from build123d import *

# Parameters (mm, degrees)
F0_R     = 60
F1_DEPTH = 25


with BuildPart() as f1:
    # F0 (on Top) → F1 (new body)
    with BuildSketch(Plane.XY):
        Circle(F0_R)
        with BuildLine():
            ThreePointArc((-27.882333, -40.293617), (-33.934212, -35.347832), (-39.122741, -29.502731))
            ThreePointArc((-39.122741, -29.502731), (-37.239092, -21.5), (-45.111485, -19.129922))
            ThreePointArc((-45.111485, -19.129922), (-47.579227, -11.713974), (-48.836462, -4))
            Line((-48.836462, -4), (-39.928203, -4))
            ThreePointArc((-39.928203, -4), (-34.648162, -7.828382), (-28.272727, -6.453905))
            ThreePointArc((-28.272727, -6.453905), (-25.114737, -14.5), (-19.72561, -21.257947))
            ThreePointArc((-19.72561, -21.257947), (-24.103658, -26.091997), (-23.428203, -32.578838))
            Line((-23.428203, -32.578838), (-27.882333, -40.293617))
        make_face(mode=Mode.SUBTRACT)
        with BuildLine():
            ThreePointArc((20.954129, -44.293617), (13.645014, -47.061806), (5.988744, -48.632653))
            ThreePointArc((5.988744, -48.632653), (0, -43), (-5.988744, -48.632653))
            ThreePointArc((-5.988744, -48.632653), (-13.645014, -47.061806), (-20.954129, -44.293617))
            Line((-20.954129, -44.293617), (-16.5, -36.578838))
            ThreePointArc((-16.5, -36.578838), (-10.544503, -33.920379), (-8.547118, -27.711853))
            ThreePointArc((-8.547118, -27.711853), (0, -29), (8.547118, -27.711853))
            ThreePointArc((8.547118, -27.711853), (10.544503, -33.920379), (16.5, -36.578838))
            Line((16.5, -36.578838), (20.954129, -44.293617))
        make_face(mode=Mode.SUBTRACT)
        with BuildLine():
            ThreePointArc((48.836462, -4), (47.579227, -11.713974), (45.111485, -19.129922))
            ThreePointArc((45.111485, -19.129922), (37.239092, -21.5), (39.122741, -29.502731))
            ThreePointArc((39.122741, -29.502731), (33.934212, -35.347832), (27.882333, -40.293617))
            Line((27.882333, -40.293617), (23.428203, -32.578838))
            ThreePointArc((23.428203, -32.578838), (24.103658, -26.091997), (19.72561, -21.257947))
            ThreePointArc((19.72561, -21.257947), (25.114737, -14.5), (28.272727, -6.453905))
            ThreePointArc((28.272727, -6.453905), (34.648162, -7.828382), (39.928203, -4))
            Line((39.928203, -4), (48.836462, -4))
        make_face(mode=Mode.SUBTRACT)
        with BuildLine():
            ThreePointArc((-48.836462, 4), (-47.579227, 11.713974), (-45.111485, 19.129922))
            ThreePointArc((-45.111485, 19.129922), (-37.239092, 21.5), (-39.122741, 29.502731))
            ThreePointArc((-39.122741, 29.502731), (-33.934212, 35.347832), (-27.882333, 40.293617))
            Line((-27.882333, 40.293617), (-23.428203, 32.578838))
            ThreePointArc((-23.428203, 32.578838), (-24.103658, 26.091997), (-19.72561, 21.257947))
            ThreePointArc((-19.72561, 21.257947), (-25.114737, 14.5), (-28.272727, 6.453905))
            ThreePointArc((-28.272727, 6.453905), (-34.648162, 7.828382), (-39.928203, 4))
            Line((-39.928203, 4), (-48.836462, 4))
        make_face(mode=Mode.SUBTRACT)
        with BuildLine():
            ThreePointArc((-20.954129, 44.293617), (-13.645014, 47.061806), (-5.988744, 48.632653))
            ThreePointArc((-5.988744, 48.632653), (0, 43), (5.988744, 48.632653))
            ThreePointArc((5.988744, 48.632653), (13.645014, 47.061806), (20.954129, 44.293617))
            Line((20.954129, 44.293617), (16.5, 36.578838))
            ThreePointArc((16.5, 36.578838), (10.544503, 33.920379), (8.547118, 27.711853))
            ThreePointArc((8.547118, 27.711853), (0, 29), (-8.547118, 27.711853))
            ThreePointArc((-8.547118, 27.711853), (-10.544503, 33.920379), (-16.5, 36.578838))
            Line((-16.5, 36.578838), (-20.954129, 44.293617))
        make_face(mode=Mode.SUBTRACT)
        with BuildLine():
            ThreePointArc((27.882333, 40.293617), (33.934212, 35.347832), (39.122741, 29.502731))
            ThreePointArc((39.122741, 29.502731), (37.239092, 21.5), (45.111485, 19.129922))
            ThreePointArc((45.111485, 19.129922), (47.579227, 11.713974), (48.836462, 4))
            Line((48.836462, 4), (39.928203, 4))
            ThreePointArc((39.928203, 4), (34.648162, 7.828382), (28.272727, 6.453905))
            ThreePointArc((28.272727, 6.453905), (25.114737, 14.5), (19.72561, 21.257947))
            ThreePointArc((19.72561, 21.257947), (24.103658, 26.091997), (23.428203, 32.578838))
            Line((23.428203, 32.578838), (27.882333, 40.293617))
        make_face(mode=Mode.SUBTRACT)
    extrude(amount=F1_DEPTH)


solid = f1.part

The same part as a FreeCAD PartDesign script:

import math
import FreeCAD as App
import Part
import Sketcher

V = App.Vector
Q = App.Units.Quantity

doc = App.newDocument("Part")
params = doc.addObject("Spreadsheet::Sheet", "Params")
for row, (alias, value) in enumerate([
    ("sketch1_diameter", "120 mm"),
    ("sketch1_radius", "6 mm"),
    ("sketch1_radius2", "7.999999 mm"),
    ("pad1_length", "25 mm"),
], start=1):
    params.set(f"A{row}", alias)
    params.set(f"B{row}", "=" + value)
    params.setAlias(f"B{row}", alias)

body = doc.addObject("PartDesign::Body", "Body")

# Sketch on XY plane
sketch1 = body.newObject("Sketcher::SketchObject", "Sketch")
sketch1.AttachmentSupport = (doc.getObject("XY_Plane"), [""])
sketch1.MapMode = "FlatFace"
sketch1.addGeometry([
    Part.Circle(V(0, 0, 0), V(0, 0, 1), 60),  # 0
    Part.LineSegment(V(-23.428203, -32.578838, 0), V(-27.882333, -40.293617, 0)),  # 1
    Part.ArcOfCircle(Part.Circle(V(0.000035, 0.000034, 0), V(0, 0, 1), 49.000049), math.radians(-142.979793), math.radians(-124.682429)),  # 2
    Part.ArcOfCircle(Part.Circle(V(-42.435244, -24.5, 0), V(0, 0, 1), 6), math.radians(-56.489904), math.radians(116.489903)),  # 3
    Part.ArcOfCircle(Part.Circle(V(-0.000017, -0.000003, 0), V(0, 0, 1), 48.999983), math.radians(-175.317585), math.radians(-157.020196)),  # 4
    Part.LineSegment(V(-48.836462, -4, 0), V(-39.928203, -4, 0)),  # 5
    Part.ArcOfCircle(Part.Circle(V(-33, -0.000001, 0), V(0, 0, 1), 7.999999), math.radians(-150.000004), math.radians(-53.778447)),  # 6
    Part.ArcOfCircle(Part.Circle(V(-0.000008, -0.000005, 0), V(0, 0, 1), 28.999991), math.radians(-167.141246), math.radians(-132.858757)),  # 7
    Part.ArcOfCircle(Part.Circle(V(-16.499999, -28.578838, 0), V(0, 0, 1), 8.000001), math.radians(113.778466), math.radians(209.999995)),  # 8
    Part.LineSegment(V(16.5, -36.578838, 0), V(20.954129, -44.293617, 0)),  # 9
    Part.ArcOfCircle(Part.Circle(V(-0.000003, 0.000016, 0), V(0, 0, 1), 49.000016), math.radians(-82.979798), math.radians(-64.682422)),  # 10
    Part.ArcOfCircle(Part.Circle(V(0, -49, 0), V(0, 0, 1), 6), math.radians(3.5101), math.radians(176.4899)),  # 11
    Part.ArcOfCircle(Part.Circle(V(0.000003, 0.000016, 0), V(0, 0, 1), 49.000016), math.radians(-115.317578), math.radians(-97.020202)),  # 12
    Part.LineSegment(V(-20.954129, -44.293617, 0), V(-16.5, -36.578838, 0)),  # 13
    Part.ArcOfCircle(Part.Circle(V(-16.499999, -28.578839, 0), V(0, 0, 1), 7.999999), math.radians(-90.000006), math.radians(6.22155)),  # 14
    Part.ArcOfCircle(Part.Circle(V(0, 0.000009, 0), V(0, 0, 1), 29.000009), math.radians(-107.141235), math.radians(-72.858765)),  # 15
    Part.ArcOfCircle(Part.Circle(V(16.499999, -28.578839, 0), V(0, 0, 1), 7.999999), math.radians(173.77845), math.radians(270.000006)),  # 16
    Part.LineSegment(V(39.928203, -4, 0), V(48.836462, -4, 0)),  # 17
    Part.ArcOfCircle(Part.Circle(V(0.000017, -0.000003, 0), V(0, 0, 1), 48.999983), math.radians(-22.979804), math.radians(-4.682415)),  # 18
    Part.ArcOfCircle(Part.Circle(V(42.435244, -24.5, 0), V(0, 0, 1), 6), math.radians(63.510097), math.radians(236.489904)),  # 19
    Part.ArcOfCircle(Part.Circle(V(-0.000035, 0.000034, 0), V(0, 0, 1), 49.000049), math.radians(-55.317571), math.radians(-37.020207)),  # 20
    Part.LineSegment(V(27.882333, -40.293617, 0), V(23.428203, -32.578838, 0)),  # 21
    Part.ArcOfCircle(Part.Circle(V(16.499999, -28.578838, 0), V(0, 0, 1), 8.000001), math.radians(-29.999995), math.radians(66.221534)),  # 22
    Part.ArcOfCircle(Part.Circle(V(0.000008, -0.000005, 0), V(0, 0, 1), 28.999991), math.radians(-47.141243), math.radians(-12.858754)),  # 23
    Part.ArcOfCircle(Part.Circle(V(33, -0.000001, 0), V(0, 0, 1), 7.999999), math.radians(-126.221553), math.radians(-29.999996)),  # 24
    Part.LineSegment(V(-39.928203, 4, 0), V(-48.836462, 4, 0)),  # 25
    Part.ArcOfCircle(Part.Circle(V(-0.000017, 0.000003, 0), V(0, 0, 1), 48.999983), math.radians(157.020196), math.radians(175.317585)),  # 26
    Part.ArcOfCircle(Part.Circle(V(-42.435244, 24.5, 0), V(0, 0, 1), 6), math.radians(-116.489903), math.radians(56.489904)),  # 27
    Part.ArcOfCircle(Part.Circle(V(0.000035, -0.000034, 0), V(0, 0, 1), 49.000049), math.radians(124.682429), math.radians(142.979793)),  # 28
    Part.LineSegment(V(-27.882333, 40.293617, 0), V(-23.428203, 32.578838, 0)),  # 29
    Part.ArcOfCircle(Part.Circle(V(-16.499999, 28.578838, 0), V(0, 0, 1), 8.000001), math.radians(150.000005), math.radians(246.221534)),  # 30
    Part.ArcOfCircle(Part.Circle(V(-0.000008, 0.000005, 0), V(0, 0, 1), 28.999991), math.radians(132.858757), math.radians(167.141246)),  # 31
    Part.ArcOfCircle(Part.Circle(V(-33, 0.000001, 0), V(0, 0, 1), 7.999999), math.radians(53.778447), math.radians(150.000004)),  # 32
    Part.LineSegment(V(23.428203, 32.578838, 0), V(27.882333, 40.293617, 0)),  # 33
    Part.ArcOfCircle(Part.Circle(V(-0.000035, -0.000034, 0), V(0, 0, 1), 49.000049), math.radians(37.020207), math.radians(55.317571)),  # 34
    Part.ArcOfCircle(Part.Circle(V(42.435244, 24.5, 0), V(0, 0, 1), 6), math.radians(123.510096), math.radians(296.489903)),  # 35
    Part.ArcOfCircle(Part.Circle(V(0.000017, 0.000003, 0), V(0, 0, 1), 48.999983), math.radians(4.682415), math.radians(22.979804)),  # 36
    Part.LineSegment(V(48.836462, 4, 0), V(39.928203, 4, 0)),  # 37
    Part.ArcOfCircle(Part.Circle(V(33, 0.000001, 0), V(0, 0, 1), 7.999999), math.radians(29.999996), math.radians(126.221553)),  # 38
    Part.ArcOfCircle(Part.Circle(V(0.000008, 0.000005, 0), V(0, 0, 1), 28.999991), math.radians(12.858754), math.radians(47.141243)),  # 39
    Part.ArcOfCircle(Part.Circle(V(16.499999, 28.578838, 0), V(0, 0, 1), 8.000001), math.radians(-66.221534), math.radians(29.999995)),  # 40
    Part.LineSegment(V(-16.5, 36.578838, 0), V(-20.954129, 44.293617, 0)),  # 41
    Part.ArcOfCircle(Part.Circle(V(0.000003, -0.000016, 0), V(0, 0, 1), 49.000016), math.radians(97.020202), math.radians(115.317578)),  # 42
    Part.ArcOfCircle(Part.Circle(V(0, 49, 0), V(0, 0, 1), 6), math.radians(-176.4899), math.radians(-3.5101)),  # 43
    Part.ArcOfCircle(Part.Circle(V(-0.000003, -0.000016, 0), V(0, 0, 1), 49.000016), math.radians(64.682422), math.radians(82.979798)),  # 44
    Part.LineSegment(V(20.954129, 44.293617, 0), V(16.5, 36.578838, 0)),  # 45
    Part.ArcOfCircle(Part.Circle(V(16.499999, 28.578839, 0), V(0, 0, 1), 7.999999), math.radians(89.999994), math.radians(186.22155)),  # 46
    Part.ArcOfCircle(Part.Circle(V(0, -0.000009, 0), V(0, 0, 1), 29.000009), math.radians(72.858765), math.radians(107.141235)),  # 47
    Part.ArcOfCircle(Part.Circle(V(-16.499999, 28.578839, 0), V(0, 0, 1), 7.999999), math.radians(-6.22155), math.radians(90.000006)),  # 48
], False)
sketch1.addConstraint([
    Sketcher.Constraint("Coincident", 1, 2, 2, 2),
    Sketcher.Constraint("Coincident", 2, 1, 3, 1),
    Sketcher.Constraint("Coincident", 3, 2, 4, 2),
    Sketcher.Constraint("Coincident", 4, 1, 5, 1),
    Sketcher.Constraint("Coincident", 5, 2, 6, 1),
    Sketcher.Constraint("Coincident", 6, 2, 7, 1),
    Sketcher.Constraint("Coincident", 7, 2, 8, 1),
    Sketcher.Constraint("Coincident", 8, 2, 1, 1),
    Sketcher.Constraint("Coincident", 9, 2, 10, 2),
    Sketcher.Constraint("Coincident", 10, 1, 11, 1),
    Sketcher.Constraint("Coincident", 11, 2, 12, 2),
    Sketcher.Constraint("Coincident", 12, 1, 13, 1),
    Sketcher.Constraint("Coincident", 13, 2, 14, 1),
    Sketcher.Constraint("Coincident", 14, 2, 15, 1),
    Sketcher.Constraint("Coincident", 15, 2, 16, 1),
    Sketcher.Constraint("Coincident", 16, 2, 9, 1),
    Sketcher.Constraint("Coincident", 17, 2, 18, 2),
    Sketcher.Constraint("Coincident", 18, 1, 19, 1),
    Sketcher.Constraint("Coincident", 19, 2, 20, 2),
    Sketcher.Constraint("Coincident", 20, 1, 21, 1),
    Sketcher.Constraint("Coincident", 21, 2, 22, 1),
    Sketcher.Constraint("Coincident", 22, 2, 23, 1),
    Sketcher.Constraint("Coincident", 23, 2, 24, 1),
    Sketcher.Constraint("Coincident", 24, 2, 17, 1),
    Sketcher.Constraint("Coincident", 25, 2, 26, 2),
    Sketcher.Constraint("Coincident", 26, 1, 27, 1),
    Sketcher.Constraint("Coincident", 27, 2, 28, 2),
    Sketcher.Constraint("Coincident", 28, 1, 29, 1),
    Sketcher.Constraint("Coincident", 29, 2, 30, 1),
    Sketcher.Constraint("Coincident", 30, 2, 31, 1),
    Sketcher.Constraint("Coincident", 31, 2, 32, 1),
    Sketcher.Constraint("Coincident", 32, 2, 25, 1),
    Sketcher.Constraint("Coincident", 33, 2, 34, 2),
    Sketcher.Constraint("Coincident", 34, 1, 35, 1),
    Sketcher.Constraint("Coincident", 35, 2, 36, 2),
    Sketcher.Constraint("Coincident", 36, 1, 37, 1),
    Sketcher.Constraint("Coincident", 37, 2, 38, 1),
    Sketcher.Constraint("Coincident", 38, 2, 39, 1),
    Sketcher.Constraint("Coincident", 39, 2, 40, 1),
    Sketcher.Constraint("Coincident", 40, 2, 33, 1),
    Sketcher.Constraint("Coincident", 41, 2, 42, 2),
    Sketcher.Constraint("Coincident", 42, 1, 43, 1),
    Sketcher.Constraint("Coincident", 43, 2, 44, 2),
    Sketcher.Constraint("Coincident", 44, 1, 45, 1),
    Sketcher.Constraint("Coincident", 45, 2, 46, 1),
    Sketcher.Constraint("Coincident", 46, 2, 47, 1),
    Sketcher.Constraint("Coincident", 47, 2, 48, 1),
    Sketcher.Constraint("Coincident", 48, 2, 41, 1),
    Sketcher.Constraint("Horizontal", 5),
    Sketcher.Constraint("Horizontal", 17),
    Sketcher.Constraint("Horizontal", 25),
    Sketcher.Constraint("Horizontal", 37),
    Sketcher.Constraint("Coincident", 0, 3, -1, 1),
    Sketcher.Constraint("Coincident", 7, 3, -1, 1),
    Sketcher.Constraint("Coincident", 15, 3, -1, 1),
    Sketcher.Constraint("Coincident", 23, 3, -1, 1),
    Sketcher.Constraint("Coincident", 31, 3, -1, 1),
    Sketcher.Constraint("Coincident", 39, 3, -1, 1),
    Sketcher.Constraint("Coincident", 47, 3, -1, 1),
    Sketcher.Constraint("Coincident", 12, 3, 10, 3),
    Sketcher.Constraint("Coincident", 14, 3, 8, 3),
    Sketcher.Constraint("Coincident", 22, 3, 16, 3),
    Sketcher.Constraint("Coincident", 26, 3, 4, 3),
    Sketcher.Constraint("Coincident", 32, 3, 6, 3),
    Sketcher.Constraint("Coincident", 36, 3, 18, 3),
    Sketcher.Constraint("Coincident", 38, 3, 24, 3),
    Sketcher.Constraint("Coincident", 44, 3, 42, 3),
    Sketcher.Constraint("Coincident", 46, 3, 40, 3),
    Sketcher.Constraint("Coincident", 48, 3, 30, 3),
    Sketcher.Constraint("Equal", 6, 8),
    Sketcher.Constraint("Equal", 3, 11),
    Sketcher.Constraint("Equal", 10, 12),
    Sketcher.Constraint("Equal", 6, 14),
    Sketcher.Constraint("Equal", 14, 16),
    Sketcher.Constraint("Equal", 4, 18),
    Sketcher.Constraint("Equal", 11, 19),
    Sketcher.Constraint("Equal", 2, 20),
    Sketcher.Constraint("Equal", 8, 22),
    Sketcher.Constraint("Equal", 7, 23),
    Sketcher.Constraint("Equal", 22, 24),
    Sketcher.Constraint("Equal", 18, 26),
    Sketcher.Constraint("Equal", 19, 27),
    Sketcher.Constraint("Equal", 20, 28),
    Sketcher.Constraint("Equal", 24, 30),
    Sketcher.Constraint("Equal", 23, 31),
    Sketcher.Constraint("Equal", 30, 32),
    Sketcher.Constraint("Equal", 28, 34),
    Sketcher.Constraint("Equal", 27, 35),
    Sketcher.Constraint("Equal", 26, 36),
    Sketcher.Constraint("Equal", 32, 38),
    Sketcher.Constraint("Equal", 31, 39),
    Sketcher.Constraint("Equal", 38, 40),
    Sketcher.Constraint("Equal", 12, 42),
    Sketcher.Constraint("Equal", 35, 43),
    Sketcher.Constraint("Equal", 42, 44),
    Sketcher.Constraint("Equal", 38, 46),
    Sketcher.Constraint("Equal", 15, 47),
    Sketcher.Constraint("Equal", 46, 48),
    Sketcher.Constraint("Symmetric", 4, 3, 18, 3, -1, 1),
    Sketcher.Constraint("Symmetric", 6, 3, 24, 3, -1, 1),
    Sketcher.Constraint("Symmetric", 19, 3, 27, 3, -1, 1),
    Sketcher.Constraint("Symmetric", 20, 3, 28, 3, -1, 1),
    Sketcher.Constraint("Symmetric", 16, 3, 30, 3, -1, 1),
    Sketcher.Constraint("Symmetric", 2, 3, 34, 3, -1, 1),
    Sketcher.Constraint("Symmetric", 3, 3, 35, 3, -1, 1),
    Sketcher.Constraint("Symmetric", 8, 3, 40, 3, -1, 1),
    Sketcher.Constraint("Symmetric", 10, 3, 42, 3, -1, 1),
    Sketcher.Constraint("Symmetric", 11, 3, 43, 3, -1, 1),
    Sketcher.Constraint("Symmetric", 8, 3, 16, 3, -2),
    Sketcher.Constraint("Symmetric", 3, 3, 19, 3, -2),
    Sketcher.Constraint("Symmetric", 2, 3, 20, 3, -2),
    Sketcher.Constraint("Symmetric", 10, 1, 11, 2, -2),
    Sketcher.Constraint("Symmetric", 4, 1, 17, 2, -2),
    Sketcher.Constraint("Symmetric", 32, 2, 37, 2, -2),
    Sketcher.Constraint("Parallel", 1, 13),
    Sketcher.Constraint("Parallel", 9, 21),
    Sketcher.Constraint("Parallel", 21, 29),
    Sketcher.Constraint("Parallel", 13, 33),
    Sketcher.Constraint("Parallel", 29, 41),
    Sketcher.Constraint("Parallel", 33, 45),
    Sketcher.Constraint("Horizontal", 9, 2, 12, 1),
    Sketcher.Constraint("Horizontal", 1, 2, 20, 1),
    Sketcher.Constraint("Horizontal", 8, 2, 21, 2),
    Sketcher.Constraint("Horizontal", 28, 1, 33, 2),
    Sketcher.Constraint("Horizontal", 41, 2, 44, 1),
    Sketcher.Constraint("Vertical", 48, 3, 13, 2),
    Sketcher.Constraint("Vertical", 4, 1, 25, 2),
    Sketcher.Constraint("Vertical", 1, 2, 28, 1),
    Sketcher.Constraint("Vertical", 12, 1, 41, 2),
    Sketcher.Constraint("Equal", 1, 9),
    Sketcher.Constraint("Diameter", 0, 120.0),
    Sketcher.Constraint("Radius", 3, 6.0),
    Sketcher.Constraint("Radius", 6, 7.999999),
    Sketcher.Constraint("Angle", 1, Q("-120.000001 deg")),
    Sketcher.Constraint("DistanceX", 6, 3, -1, 1, 33.0),
    Sketcher.Constraint("DistanceY", 11, 3, -1, 1, 49.0),
    Sketcher.Constraint("DistanceY", 4, 1, -1, 1, 4.0),
    Sketcher.Constraint("DistanceY", 3, 3, -1, 1, 24.5),
    Sketcher.Constraint("DistanceX", 8, 3, -1, 1, 16.499999),
    Sketcher.Constraint("Radius", 2, 49.000049),
    Sketcher.Constraint("Radius", 7, 28.999991),
    Sketcher.Constraint("Radius", 15, 29.000009),
    Sketcher.Constraint("Radius", 4, 48.999983),
    Sketcher.Constraint("Radius", 10, 49.000016),
    Sketcher.Constraint("DistanceX", 5, 1, 5, 2, 8.908259),
    Sketcher.Constraint("Distance", 1, 8.90826),
    Sketcher.Constraint("DistanceY", 8, 3, -1, 1, 28.578838),
    Sketcher.Constraint("DistanceX", 2, 1, -1, 1, 39.122741),
    Sketcher.Constraint("DistanceY", 2, 1, -1, 1, 29.502731),
    Sketcher.Constraint("DistanceY", 8, 2, -1, 1, 32.578838),
])
sketch1.setExpression("Constraints[130]", "Params.sketch1_diameter")
sketch1.setExpression("Constraints[131]", "Params.sketch1_radius")
sketch1.setExpression("Constraints[132]", "Params.sketch1_radius2")
pad1 = body.newObject("PartDesign::Pad", "Pad")
pad1.Profile = sketch1
pad1.setExpression("Length", "Params.pad1_length")

doc.recompute()
